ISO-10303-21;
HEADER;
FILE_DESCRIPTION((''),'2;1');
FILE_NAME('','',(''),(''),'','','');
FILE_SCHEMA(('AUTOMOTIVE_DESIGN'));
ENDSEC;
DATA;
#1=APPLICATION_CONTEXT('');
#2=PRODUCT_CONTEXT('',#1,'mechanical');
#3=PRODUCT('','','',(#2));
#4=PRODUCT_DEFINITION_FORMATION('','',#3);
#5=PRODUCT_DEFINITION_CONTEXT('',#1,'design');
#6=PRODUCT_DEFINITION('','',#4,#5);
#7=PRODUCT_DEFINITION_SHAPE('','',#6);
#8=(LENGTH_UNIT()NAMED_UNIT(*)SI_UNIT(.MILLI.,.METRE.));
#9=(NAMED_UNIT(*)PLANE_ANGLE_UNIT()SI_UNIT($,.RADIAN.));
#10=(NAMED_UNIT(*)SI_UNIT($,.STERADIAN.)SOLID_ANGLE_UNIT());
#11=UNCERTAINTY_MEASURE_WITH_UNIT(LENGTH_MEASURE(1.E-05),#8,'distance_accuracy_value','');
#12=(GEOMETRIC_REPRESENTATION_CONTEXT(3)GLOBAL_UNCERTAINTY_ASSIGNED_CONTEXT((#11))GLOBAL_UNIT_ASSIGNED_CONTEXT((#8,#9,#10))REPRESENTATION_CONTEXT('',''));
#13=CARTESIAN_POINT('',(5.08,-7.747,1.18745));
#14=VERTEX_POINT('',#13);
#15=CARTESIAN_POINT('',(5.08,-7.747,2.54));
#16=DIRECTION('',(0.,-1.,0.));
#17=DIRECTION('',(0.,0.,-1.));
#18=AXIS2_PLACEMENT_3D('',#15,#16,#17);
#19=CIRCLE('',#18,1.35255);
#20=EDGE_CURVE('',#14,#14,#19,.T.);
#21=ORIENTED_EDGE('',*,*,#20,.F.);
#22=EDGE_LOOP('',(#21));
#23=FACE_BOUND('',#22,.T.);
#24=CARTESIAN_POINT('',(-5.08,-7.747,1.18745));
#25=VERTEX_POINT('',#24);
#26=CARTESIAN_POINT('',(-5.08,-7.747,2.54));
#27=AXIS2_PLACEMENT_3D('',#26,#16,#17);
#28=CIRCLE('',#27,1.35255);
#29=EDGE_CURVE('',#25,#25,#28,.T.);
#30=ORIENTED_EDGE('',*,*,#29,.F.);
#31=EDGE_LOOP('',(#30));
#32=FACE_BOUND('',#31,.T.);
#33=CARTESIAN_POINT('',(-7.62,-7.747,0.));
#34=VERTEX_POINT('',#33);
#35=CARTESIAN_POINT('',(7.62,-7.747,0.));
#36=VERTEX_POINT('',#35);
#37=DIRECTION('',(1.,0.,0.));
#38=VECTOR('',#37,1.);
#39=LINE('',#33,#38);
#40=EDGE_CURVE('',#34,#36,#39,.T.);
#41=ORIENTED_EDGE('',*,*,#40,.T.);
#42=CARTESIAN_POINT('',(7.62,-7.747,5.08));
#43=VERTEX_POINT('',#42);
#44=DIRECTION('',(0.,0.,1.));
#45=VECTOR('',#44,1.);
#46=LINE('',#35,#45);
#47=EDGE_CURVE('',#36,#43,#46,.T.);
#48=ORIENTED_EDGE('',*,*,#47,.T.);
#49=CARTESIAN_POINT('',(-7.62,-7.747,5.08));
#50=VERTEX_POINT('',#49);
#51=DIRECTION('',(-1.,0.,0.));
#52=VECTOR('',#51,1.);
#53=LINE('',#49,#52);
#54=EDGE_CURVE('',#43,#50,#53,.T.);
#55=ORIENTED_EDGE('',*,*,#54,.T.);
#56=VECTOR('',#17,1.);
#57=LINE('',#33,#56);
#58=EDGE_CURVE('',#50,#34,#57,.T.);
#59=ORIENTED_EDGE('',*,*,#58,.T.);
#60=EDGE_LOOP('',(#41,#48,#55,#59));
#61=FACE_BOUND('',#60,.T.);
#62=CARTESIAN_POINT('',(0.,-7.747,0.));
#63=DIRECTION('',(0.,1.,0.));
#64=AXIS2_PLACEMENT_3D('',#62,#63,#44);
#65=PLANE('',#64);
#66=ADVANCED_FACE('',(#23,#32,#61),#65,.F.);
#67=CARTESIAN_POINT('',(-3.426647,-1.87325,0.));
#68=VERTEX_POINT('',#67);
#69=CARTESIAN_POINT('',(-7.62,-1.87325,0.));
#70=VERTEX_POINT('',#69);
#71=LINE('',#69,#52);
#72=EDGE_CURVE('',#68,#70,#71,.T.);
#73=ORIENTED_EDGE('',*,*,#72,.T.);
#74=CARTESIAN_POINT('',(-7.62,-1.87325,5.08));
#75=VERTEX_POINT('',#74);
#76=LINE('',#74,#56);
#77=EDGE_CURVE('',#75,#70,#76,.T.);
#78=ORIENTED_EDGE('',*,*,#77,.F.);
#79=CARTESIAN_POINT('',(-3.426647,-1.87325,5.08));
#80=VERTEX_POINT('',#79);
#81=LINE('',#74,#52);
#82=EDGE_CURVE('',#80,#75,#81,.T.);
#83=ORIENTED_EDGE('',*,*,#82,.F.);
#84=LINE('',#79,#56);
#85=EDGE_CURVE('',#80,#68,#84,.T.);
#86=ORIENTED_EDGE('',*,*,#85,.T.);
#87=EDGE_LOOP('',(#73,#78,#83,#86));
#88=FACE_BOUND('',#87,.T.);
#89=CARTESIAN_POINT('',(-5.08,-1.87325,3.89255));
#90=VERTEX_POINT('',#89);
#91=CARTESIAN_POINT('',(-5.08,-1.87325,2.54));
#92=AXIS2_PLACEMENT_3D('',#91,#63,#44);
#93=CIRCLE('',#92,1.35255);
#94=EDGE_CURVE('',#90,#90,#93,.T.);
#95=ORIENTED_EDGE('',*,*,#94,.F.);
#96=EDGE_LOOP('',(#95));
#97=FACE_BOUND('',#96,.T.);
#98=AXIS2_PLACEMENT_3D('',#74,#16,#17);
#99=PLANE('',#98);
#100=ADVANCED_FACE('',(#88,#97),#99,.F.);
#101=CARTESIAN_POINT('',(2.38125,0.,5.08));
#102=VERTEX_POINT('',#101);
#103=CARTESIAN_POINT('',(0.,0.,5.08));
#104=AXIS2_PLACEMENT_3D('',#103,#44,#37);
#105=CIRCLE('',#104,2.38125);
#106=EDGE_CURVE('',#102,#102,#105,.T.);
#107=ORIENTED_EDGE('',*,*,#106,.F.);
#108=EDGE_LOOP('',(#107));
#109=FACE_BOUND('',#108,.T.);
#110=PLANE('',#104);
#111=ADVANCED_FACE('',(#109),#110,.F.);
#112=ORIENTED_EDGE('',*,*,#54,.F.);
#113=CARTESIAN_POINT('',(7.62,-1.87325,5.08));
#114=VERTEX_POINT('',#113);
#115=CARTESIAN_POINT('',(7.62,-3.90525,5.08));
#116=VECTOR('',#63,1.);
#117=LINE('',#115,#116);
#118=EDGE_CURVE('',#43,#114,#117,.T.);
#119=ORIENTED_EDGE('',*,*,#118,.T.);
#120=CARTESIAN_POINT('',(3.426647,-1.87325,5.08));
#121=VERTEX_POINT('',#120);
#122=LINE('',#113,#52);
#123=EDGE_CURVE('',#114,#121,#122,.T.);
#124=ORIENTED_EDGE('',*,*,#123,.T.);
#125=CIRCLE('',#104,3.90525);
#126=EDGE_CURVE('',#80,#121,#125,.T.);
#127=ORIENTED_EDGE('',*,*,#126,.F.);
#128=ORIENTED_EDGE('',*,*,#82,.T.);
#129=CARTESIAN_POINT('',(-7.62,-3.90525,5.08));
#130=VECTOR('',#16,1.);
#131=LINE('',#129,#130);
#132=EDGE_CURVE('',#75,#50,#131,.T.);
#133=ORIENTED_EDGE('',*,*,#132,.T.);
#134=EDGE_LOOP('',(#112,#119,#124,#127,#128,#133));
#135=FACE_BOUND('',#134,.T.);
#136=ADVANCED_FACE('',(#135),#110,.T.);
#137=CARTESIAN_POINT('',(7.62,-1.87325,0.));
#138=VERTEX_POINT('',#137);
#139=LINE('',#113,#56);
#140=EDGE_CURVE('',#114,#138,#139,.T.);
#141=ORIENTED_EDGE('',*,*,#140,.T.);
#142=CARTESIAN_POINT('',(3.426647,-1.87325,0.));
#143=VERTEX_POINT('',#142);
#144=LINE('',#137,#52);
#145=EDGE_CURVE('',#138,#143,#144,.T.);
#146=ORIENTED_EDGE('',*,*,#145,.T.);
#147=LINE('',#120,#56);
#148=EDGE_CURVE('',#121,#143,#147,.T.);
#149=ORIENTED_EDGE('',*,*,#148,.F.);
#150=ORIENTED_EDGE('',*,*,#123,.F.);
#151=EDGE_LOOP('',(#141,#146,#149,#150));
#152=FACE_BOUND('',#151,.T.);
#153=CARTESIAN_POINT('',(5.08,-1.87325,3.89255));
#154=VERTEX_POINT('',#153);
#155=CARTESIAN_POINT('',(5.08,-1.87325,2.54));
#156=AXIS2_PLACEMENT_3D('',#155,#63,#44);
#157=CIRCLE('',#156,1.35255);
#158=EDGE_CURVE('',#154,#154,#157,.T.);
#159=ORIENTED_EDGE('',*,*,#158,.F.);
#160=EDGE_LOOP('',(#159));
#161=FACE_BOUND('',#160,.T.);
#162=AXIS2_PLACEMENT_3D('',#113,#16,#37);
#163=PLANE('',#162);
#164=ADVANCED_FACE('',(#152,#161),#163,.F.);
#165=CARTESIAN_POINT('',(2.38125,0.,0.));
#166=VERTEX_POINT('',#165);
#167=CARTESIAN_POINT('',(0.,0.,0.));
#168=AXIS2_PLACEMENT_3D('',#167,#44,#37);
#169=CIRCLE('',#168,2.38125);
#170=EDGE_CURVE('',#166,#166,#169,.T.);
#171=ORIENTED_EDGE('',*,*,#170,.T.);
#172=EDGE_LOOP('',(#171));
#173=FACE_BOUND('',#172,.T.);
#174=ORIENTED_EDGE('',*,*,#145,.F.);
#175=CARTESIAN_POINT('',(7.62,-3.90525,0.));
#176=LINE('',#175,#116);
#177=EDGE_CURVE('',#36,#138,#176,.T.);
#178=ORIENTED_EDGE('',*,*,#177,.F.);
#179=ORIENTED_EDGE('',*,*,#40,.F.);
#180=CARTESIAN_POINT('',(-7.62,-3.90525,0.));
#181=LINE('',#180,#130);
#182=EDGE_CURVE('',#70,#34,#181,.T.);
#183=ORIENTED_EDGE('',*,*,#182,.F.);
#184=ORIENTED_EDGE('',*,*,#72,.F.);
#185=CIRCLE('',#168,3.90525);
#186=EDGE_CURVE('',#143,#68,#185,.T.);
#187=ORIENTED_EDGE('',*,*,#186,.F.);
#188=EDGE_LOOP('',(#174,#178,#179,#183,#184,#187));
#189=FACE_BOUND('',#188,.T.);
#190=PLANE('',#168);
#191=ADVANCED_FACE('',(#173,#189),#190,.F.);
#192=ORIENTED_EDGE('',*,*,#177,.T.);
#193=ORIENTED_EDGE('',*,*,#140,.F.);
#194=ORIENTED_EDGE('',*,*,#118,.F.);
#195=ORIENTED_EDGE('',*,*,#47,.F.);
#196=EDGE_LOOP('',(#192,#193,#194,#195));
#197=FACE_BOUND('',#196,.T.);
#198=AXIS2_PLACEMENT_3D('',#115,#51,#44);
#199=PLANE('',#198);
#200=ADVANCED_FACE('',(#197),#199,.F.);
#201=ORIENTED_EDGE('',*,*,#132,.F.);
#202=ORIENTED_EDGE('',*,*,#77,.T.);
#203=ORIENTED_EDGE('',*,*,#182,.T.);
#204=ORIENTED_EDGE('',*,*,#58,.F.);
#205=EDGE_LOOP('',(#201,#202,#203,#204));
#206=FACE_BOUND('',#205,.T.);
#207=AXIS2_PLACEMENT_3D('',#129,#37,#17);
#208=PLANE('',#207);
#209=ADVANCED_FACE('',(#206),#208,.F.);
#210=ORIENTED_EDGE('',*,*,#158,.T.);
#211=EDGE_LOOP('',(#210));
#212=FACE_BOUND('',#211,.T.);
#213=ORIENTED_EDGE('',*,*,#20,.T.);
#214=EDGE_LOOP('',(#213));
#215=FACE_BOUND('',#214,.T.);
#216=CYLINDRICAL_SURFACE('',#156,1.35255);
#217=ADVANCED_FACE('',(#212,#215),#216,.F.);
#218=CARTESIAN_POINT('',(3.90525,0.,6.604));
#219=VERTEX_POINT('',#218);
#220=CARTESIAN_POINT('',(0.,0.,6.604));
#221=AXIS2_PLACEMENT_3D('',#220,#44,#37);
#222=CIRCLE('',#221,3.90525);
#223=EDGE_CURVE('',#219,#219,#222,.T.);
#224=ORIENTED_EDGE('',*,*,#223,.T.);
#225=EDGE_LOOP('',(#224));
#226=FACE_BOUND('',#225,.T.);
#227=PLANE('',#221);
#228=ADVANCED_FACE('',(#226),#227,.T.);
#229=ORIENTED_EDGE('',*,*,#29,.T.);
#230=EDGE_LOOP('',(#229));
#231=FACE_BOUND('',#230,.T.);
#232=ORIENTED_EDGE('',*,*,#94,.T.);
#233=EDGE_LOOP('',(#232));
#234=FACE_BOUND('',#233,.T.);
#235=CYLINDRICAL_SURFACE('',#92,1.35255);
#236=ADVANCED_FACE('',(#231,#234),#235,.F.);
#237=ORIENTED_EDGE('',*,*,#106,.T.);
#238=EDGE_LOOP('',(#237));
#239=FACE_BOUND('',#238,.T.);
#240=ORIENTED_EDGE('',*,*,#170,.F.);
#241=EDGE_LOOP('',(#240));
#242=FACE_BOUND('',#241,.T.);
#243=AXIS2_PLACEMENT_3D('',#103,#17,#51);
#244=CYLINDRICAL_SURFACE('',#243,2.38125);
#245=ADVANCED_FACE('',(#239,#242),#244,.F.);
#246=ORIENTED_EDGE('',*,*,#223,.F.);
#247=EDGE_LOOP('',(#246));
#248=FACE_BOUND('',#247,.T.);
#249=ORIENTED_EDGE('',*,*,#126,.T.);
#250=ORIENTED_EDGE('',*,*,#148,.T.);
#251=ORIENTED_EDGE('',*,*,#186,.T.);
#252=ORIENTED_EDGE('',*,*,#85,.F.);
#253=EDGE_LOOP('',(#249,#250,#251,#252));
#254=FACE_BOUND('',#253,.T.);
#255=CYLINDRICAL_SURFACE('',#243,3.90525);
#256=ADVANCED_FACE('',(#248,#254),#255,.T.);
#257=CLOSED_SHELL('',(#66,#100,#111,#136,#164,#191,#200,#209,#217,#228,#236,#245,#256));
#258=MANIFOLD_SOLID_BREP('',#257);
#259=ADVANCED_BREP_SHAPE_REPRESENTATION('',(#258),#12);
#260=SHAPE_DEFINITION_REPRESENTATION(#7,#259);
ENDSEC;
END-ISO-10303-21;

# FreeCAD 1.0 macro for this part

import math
import FreeCAD as App
import Part
import Sketcher
from FreeCAD import Vector
Q = App.Units.Quantity


def add_polygon(sketch, points):
    """Adds a closed chain of lines whose ends are joined by coincident constraints."""
    first, n = sketch.GeometryCount, len(points)
    for a, b in zip(points, points[1:] + points[:1]):
        sketch.addGeometry(Part.LineSegment(App.Vector(*a, 0), App.Vector(*b, 0)), False)
    for i in range(n):
        sketch.addConstraint(Sketcher.Constraint("Coincident", first + i, 2, first + (i + 1) % n, 1))

doc = App.newDocument("Part")
params = doc.addObject("Spreadsheet::Sheet", "Params")
for row, (alias, value) in enumerate([
    ("sketch1_diameter", "0.1875 in"),
    ("sketch1_width", "0.6 in"),
    ("sketch1_height", "0.08 in"),
    ("pad1_length", "0.2 in"),
    ("pad2_length", "0.06 in"),
    ("sketch3_width", "0.3 in"),
    ("groove_angle", "360 deg"),
    ("linearpattern_pitch", "0.4 in"),
    ("sketch4_width", "0.6 in"),
    ("sketch4_height", "0.2 in"),
    ("pad3_length", "3.84175 mm"),
], start=1):
    params.set(f"A{row}", alias)
    params.set(f"B{row}", "=" + value)
    params.setAlias(f"B{row}", alias)

body = doc.addObject("PartDesign::Body", "Body")

# Sketch on XY plane
sketch1 = body.newObject("Sketcher::SketchObject", "Sketch")
sketch1.AttachmentSupport = (doc.getObject("XY_Plane"), [""])
sketch1.MapMode = "FlatFace"
sketch1.addGeometry([
    Part.LineSegment(Vector(-7.6, -1.9, 0), Vector(-7.6, -3.9, 0)),  # 0
    Part.LineSegment(Vector(-7.6, -3.9, 0), Vector(7.6, -3.9, 0)),  # 1
    Part.LineSegment(Vector(7.6, -3.9, 0), Vector(7.6, -1.9, 0)),  # 2
    Part.LineSegment(Vector(7.6, -1.9, 0), Vector(3.4, -1.9, 0)),  # 3
    Part.ArcOfCircle(Part.Circle(Vector(0, 0, 0), Vector(0, 0, 1), 3.9), math.radians(-29), math.radians(209)),  # 4
    Part.LineSegment(Vector(-3.4, -1.9, 0), Vector(-7.6, -1.9, 0)),  # 5
    Part.Circle(Vector(0, 0, 0), Vector(0, 0, 1), 2.4),  # 6
], False)
sketch1.addConstraint([
    Sketcher.Constraint("Coincident", 0, 2, 1, 1),
    Sketcher.Constraint("Coincident", 1, 2, 2, 1),
    Sketcher.Constraint("Coincident", 2, 2, 3, 1),
    Sketcher.Constraint("Coincident", 3, 2, 4, 1),
    Sketcher.Constraint("Coincident", 4, 2, 5, 1),
    Sketcher.Constraint("Coincident", 5, 2, 0, 1),
    Sketcher.Constraint("Vertical", 0),
    Sketcher.Constraint("Horizontal", 1),
    Sketcher.Constraint("Vertical", 2),
    Sketcher.Constraint("Horizontal", 3),
    Sketcher.Constraint("Horizontal", 5),
    Sketcher.Constraint("Coincident", 4, 3, -1, 1),
    Sketcher.Constraint("Coincident", 6, 3, -1, 1),
    Sketcher.Constraint("Symmetric", 2, 2, 5, 2, -2),
    Sketcher.Constraint("Diameter", 6, Q("0.1875 in")),
    Sketcher.Constraint("DistanceX", 1, 1, 1, 2, Q("0.6 in")),
    Sketcher.Constraint("DistanceY", 0, 2, 0, 1, Q("0.08 in")),
    Sketcher.Constraint("Radius", 4, 3.90525),
    Sketcher.Constraint("DistanceX", 3, 2, 3, 1, 4.193353),
])
sketch1.setExpression("Constraints[14]", "Params.sketch1_diameter")
sketch1.setExpression("Constraints[15]", "Params.sketch1_width")
sketch1.setExpression("Constraints[16]", "Params.sketch1_height")
pad1 = body.newObject("PartDesign::Pad", "Pad")
pad1.Profile = sketch1
pad1.setExpression("Length", "Params.pad1_length")

# Sketch on XY plane
sketch2 = body.newObject("Sketcher::SketchObject", "Sketch001")
sketch2.AttachmentSupport = (doc.getObject("XY_Plane"), [""])
sketch2.MapMode = "FlatFace"
sketch2.AttachmentOffset = App.Placement(Vector(0, 0, 0.2 * 25.4), App.Rotation())
sketch2.addGeometry(Part.Circle(Vector(0, 0, 0), Vector(0, 0, 1), 3.9), False)
sketch2.addConstraint([
    Sketcher.Constraint("Coincident", 0, 3, -1, 1),
    Sketcher.Constraint("Diameter", 0, Q("0.3075 in")),
])
pad2 = body.newObject("PartDesign::Pad", "Pad001")
pad2.Profile = sketch2
pad2.setExpression("Length", "Params.pad2_length")

# Sketch on YZ plane
sketch3 = body.newObject("Sketcher::SketchObject", "Sketch002")
sketch3.AttachmentSupport = (doc.getObject("YZ_Plane"), [""])
sketch3.MapMode = "FlatFace"
sketch3.AttachmentOffset = App.Placement(Vector(0, 0, -0.2 * 25.4), App.Rotation())
add_polygon(sketch3, [(-10.3, 2.5), (-1.9, 2.5), (-1.9, 3.9), (-9.5, 3.9)])  # lines 0-3
sketch3.addGeometry(Part.LineSegment(Vector(-1.9, 2.5, 0), Vector(-10.3, 2.5, 0)), True)  # axis
sketch3.addConstraint([
    Sketcher.Constraint("Horizontal", 0),
    Sketcher.Constraint("Vertical", 1),
    Sketcher.Constraint("Horizontal", 2),
    Sketcher.Constraint("Horizontal", 4),
    Sketcher.Constraint("Coincident", 4, 1, 0, 2),
    Sketcher.Constraint("Equal", 0, 4),
    Sketcher.Constraint("DistanceX", 2, 2, 2, 1, Q("0.3 in")),
    Sketcher.Constraint("Angle", 3, Q("-121 deg")),
    Sketcher.Constraint("DistanceY", -1, 1, 0, 2, Q("0.1 in")),
    Sketcher.Constraint("DistanceY", 1, 1, 1, 2, 1.35255),
    Sketcher.Constraint("DistanceX", 0, 2, -1, 1, 1.87325),
])
sketch3.setExpression("Constraints[10]", "Params.sketch3_width")
groove = body.newObject("PartDesign::Groove", "Groove")
groove.Profile = sketch3
groove.ReferenceAxis = (sketch3, ["Axis0"])
groove.setExpression("Angle", "Params.groove_angle")
doc.recompute()

linearpattern = body.newObject("PartDesign::LinearPattern", "LinearPattern")
linearpattern.Originals = [groove]
linearpattern.Direction = (doc.getObject("X_Axis"), [""])
linearpattern.Mode = "offset"
linearpattern.setExpression("Offset", "Params.linearpattern_pitch")
linearpattern.Occurrences = 2
body.Tip = linearpattern

# Sketch on XZ plane
sketch4 = body.newObject("Sketcher::SketchObject", "Sketch003")
sketch4.AttachmentSupport = (doc.getObject("XZ_Plane"), [""])
sketch4.MapMode = "FlatFace"
sketch4.AttachmentOffset = App.Placement(Vector(0, 0, 3.90525), App.Rotation())
add_polygon(sketch4, [(-7.6, 5.1), (-7.6, 0), (7.6, 0), (7.6, 5.1)])  # lines 0-3
sketch4.addGeometry(Part.Circle(Vector(-5.1, 2.5, 0), Vector(0, 0, 1), 1.4), False)  # 4
sketch4.addGeometry(Part.Circle(Vector(5.1, 2.5, 0), Vector(0, 0, 1), 1.4), False)  # 5
sketch4.addConstraint([
    Sketcher.Constraint("Vertical", 0),
    Sketcher.Constraint("Horizontal", 1),
    Sketcher.Constraint("Vertical", 2),
    Sketcher.Constraint("Horizontal", 3),
    Sketcher.Constraint("Equal", 4, 5),
    Sketcher.Constraint("Symmetric", 0, 2, 1, 2, -1, 1),
    Sketcher.Constraint("Symmetric", 4, 3, 5, 3, -2),
    Sketcher.Constraint("DistanceX", 1, 1, 1, 2, Q("0.6 in")),
    Sketcher.Constraint("DistanceY", 0, 2, 0, 1, Q("0.2 in")),
    Sketcher.Constraint("Diameter", 4, Q("0.1065 in")),
    Sketcher.Constraint("DistanceX", 4, 3, -1, 1, Q("0.2 in")),
    Sketcher.Constraint("DistanceY", -1, 1, 4, 3, Q("0.1 in")),
])
sketch4.setExpression("Constraints[11]", "Params.sketch4_width")
sketch4.setExpression("Constraints[12]", "Params.sketch4_height")
pad3 = body.newObject("PartDesign::Pad", "Pad002")
pad3.Profile = sketch4
pad3.setExpression("Length", "Params.pad3_length")

doc.recompute()
